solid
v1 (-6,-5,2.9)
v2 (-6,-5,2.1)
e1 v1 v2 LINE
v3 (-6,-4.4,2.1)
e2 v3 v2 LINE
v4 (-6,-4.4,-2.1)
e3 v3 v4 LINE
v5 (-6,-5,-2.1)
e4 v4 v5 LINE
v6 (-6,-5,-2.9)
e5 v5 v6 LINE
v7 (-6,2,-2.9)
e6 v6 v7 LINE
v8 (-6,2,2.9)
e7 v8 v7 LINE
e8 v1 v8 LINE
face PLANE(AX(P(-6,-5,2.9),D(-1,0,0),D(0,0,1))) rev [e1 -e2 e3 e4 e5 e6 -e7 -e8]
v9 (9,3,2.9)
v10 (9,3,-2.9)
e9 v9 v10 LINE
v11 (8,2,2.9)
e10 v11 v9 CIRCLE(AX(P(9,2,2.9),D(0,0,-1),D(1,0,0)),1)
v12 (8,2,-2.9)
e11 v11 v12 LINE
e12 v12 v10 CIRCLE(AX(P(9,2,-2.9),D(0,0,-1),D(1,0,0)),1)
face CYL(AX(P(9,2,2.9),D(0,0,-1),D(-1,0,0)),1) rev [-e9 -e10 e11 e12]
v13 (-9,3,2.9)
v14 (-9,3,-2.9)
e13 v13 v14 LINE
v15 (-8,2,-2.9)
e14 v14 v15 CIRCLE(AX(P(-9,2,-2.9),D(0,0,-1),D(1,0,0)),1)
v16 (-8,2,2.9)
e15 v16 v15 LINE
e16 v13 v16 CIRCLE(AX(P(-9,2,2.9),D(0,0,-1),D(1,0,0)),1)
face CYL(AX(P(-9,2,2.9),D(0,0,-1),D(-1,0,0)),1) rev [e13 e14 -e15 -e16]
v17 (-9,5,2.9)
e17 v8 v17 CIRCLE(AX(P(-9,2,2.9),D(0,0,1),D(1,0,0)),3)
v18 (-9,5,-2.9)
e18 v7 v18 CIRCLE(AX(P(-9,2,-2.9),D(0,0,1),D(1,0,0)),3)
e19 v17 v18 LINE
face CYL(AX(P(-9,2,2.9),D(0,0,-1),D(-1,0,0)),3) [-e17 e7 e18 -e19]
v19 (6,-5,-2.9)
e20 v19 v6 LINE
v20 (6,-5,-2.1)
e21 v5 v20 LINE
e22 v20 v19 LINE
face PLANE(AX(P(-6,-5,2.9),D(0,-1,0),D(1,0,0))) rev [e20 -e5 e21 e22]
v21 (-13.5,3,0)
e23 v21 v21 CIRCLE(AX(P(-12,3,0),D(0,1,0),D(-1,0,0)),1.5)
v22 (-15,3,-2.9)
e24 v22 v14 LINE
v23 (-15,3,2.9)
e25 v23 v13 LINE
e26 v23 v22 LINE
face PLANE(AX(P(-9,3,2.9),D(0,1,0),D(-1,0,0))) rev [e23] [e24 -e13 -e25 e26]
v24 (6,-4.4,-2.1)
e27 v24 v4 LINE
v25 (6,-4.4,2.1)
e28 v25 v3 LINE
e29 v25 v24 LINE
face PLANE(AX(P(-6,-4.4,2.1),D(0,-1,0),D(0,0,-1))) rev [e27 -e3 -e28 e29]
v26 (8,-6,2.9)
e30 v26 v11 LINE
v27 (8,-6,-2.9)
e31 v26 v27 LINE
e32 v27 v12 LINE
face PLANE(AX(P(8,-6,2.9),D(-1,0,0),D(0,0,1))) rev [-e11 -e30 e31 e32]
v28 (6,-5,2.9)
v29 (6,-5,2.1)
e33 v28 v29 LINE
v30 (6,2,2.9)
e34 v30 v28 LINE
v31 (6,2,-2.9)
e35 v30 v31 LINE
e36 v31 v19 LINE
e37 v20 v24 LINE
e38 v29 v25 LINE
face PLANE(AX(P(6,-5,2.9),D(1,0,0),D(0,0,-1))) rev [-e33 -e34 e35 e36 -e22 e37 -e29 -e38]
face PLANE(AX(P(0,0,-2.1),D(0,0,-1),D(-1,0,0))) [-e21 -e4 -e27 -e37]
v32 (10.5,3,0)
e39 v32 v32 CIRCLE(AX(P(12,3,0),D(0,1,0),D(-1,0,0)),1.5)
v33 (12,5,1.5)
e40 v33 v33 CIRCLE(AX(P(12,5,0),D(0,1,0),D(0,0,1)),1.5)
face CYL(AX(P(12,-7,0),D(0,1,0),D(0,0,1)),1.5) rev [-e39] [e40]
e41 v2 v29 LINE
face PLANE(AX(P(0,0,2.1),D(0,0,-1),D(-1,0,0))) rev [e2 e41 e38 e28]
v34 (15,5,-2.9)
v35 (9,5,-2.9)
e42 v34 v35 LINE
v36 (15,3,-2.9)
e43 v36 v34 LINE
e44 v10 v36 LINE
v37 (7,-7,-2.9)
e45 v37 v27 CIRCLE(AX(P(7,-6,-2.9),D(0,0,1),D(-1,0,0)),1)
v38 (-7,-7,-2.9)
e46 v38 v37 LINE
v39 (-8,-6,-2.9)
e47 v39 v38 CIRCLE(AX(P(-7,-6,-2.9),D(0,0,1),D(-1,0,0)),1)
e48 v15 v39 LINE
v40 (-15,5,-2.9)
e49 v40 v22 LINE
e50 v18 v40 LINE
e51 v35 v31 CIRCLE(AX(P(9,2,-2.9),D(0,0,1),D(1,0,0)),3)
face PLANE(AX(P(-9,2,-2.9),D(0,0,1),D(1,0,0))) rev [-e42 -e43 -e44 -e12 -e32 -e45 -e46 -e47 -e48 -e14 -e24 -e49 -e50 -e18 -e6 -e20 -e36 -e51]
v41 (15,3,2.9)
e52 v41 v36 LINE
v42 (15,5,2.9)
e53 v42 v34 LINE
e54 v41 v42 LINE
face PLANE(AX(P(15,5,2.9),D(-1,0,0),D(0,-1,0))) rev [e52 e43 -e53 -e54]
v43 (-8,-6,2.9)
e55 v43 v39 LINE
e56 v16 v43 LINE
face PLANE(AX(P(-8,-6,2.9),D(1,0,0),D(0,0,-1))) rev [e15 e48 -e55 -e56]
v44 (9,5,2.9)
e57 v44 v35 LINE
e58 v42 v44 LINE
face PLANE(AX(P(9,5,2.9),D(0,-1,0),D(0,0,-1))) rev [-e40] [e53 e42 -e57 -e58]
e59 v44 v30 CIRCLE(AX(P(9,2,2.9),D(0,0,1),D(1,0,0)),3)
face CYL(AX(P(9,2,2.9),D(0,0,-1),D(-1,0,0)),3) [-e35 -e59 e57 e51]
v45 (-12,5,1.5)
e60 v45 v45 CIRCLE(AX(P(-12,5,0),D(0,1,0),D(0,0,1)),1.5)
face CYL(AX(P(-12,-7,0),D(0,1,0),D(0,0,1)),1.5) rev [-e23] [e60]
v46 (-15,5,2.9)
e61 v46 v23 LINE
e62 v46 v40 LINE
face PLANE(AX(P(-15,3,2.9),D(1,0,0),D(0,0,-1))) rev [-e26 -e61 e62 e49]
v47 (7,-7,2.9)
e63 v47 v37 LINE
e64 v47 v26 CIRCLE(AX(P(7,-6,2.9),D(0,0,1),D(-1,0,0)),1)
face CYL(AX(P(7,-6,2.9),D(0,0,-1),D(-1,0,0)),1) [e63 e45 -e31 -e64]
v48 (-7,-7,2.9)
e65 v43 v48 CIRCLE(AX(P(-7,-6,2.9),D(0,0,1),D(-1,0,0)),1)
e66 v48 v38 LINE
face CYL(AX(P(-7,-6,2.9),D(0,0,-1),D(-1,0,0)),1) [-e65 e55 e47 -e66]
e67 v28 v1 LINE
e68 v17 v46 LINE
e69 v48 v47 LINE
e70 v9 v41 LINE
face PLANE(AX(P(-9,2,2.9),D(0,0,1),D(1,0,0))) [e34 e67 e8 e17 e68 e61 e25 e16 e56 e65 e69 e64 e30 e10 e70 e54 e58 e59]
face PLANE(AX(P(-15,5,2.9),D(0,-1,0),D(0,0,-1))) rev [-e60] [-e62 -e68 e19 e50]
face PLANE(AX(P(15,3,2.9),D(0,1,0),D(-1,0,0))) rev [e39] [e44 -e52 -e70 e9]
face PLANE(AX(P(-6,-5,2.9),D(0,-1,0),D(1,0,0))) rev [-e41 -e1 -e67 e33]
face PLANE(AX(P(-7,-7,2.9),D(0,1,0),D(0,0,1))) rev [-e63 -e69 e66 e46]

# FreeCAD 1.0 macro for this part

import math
import FreeCAD as App
import Part
import Sketcher
from FreeCAD import Vector
Q = App.Units.Quantity

doc = App.newDocument("Part")
body = doc.addObject("PartDesign::Body", "Body")

# Sketch on XY plane
sketch1 = body.newObject("Sketcher::SketchObject", "Sketch")
sketch1.AttachmentSupport = (doc.getObject("XY_Plane"), [""])
sketch1.MapMode = "FlatFace"
sketch1.addGeometry(Part.LineSegment(Vector(6, -5, 0), Vector(-6, -5, 0)), False)
sketch1.addGeometry(Part.LineSegment(Vector(-6, -5, 0), Vector(-6, 2, 0)), False)
sketch1.addGeometry(Part.ArcOfCircle(Part.Circle(Vector(-9, 2, 0), Vector(0, 0, 1), 3), math.radians(0), math.radians(90)), False)
sketch1.addGeometry(Part.LineSegment(Vector(-9, 5, 0), Vector(-15, 5, 0)), False)
sketch1.addGeometry(Part.LineSegment(Vector(-15, 5, 0), Vector(-15, 3, 0)), False)
sketch1.addGeometry(Part.LineSegment(Vector(-15, 3, 0), Vector(-9, 3, 0)), False)
sketch1.addGeometry(Part.ArcOfCircle(Part.Circle(Vector(-9, 2, 0), Vector(0, 0, 1), 1), math.radians(0), math.radians(90)), False)
sketch1.addGeometry(Part.LineSegment(Vector(-8, 2, 0), Vector(-8, -6, 0)), False)
sketch1.addGeometry(Part.ArcOfCircle(Part.Circle(Vector(-7, -6, 0), Vector(0, 0, 1), 1), math.radians(-180), math.radians(-90)), False)
sketch1.addGeometry(Part.LineSegment(Vector(-7, -7, 0), Vector(7, -7, 0)), False)
sketch1.addGeometry(Part.ArcOfCircle(Part.Circle(Vector(7, -6, 0), Vector(0, 0, 1), 1), math.radians(-90), math.radians(0)), False)
sketch1.addGeometry(Part.LineSegment(Vector(8, -6, 0), Vector(8, 2, 0)), False)
sketch1.addGeometry(Part.ArcOfCircle(Part.Circle(Vector(9, 2, 0), Vector(0, 0, 1), 1), math.radians(90), math.radians(180)), False)
sketch1.addGeometry(Part.LineSegment(Vector(9, 3, 0), Vector(15, 3, 0)), False)
sketch1.addGeometry(Part.LineSegment(Vector(15, 3, 0), Vector(15, 5, 0)), False)
sketch1.addGeometry(Part.LineSegment(Vector(15, 5, 0), Vector(9, 5, 0)), False)
sketch1.addGeometry(Part.ArcOfCircle(Part.Circle(Vector(9, 2, 0), Vector(0, 0, 1), 3), math.radians(90), math.radians(180)), False)
sketch1.addGeometry(Part.LineSegment(Vector(6, 2, 0), Vector(6, -5, 0)), False)
sketch1.addConstraint(Sketcher.Constraint("Coincident", 0, 2, 1, 1))
sketch1.addConstraint(Sketcher.Constraint("Tangent", 1, 2, 2, 1))
sketch1.addConstraint(Sketcher.Constraint("Tangent", 2, 2, 3, 1))
sketch1.addConstraint(Sketcher.Constraint("Coincident", 3, 2, 4, 1))
sketch1.addConstraint(Sketcher.Constraint("Coincident", 4, 2, 5, 1))
sketch1.addConstraint(Sketcher.Constraint("Tangent", 5, 2, 6, 2))
sketch1.addConstraint(Sketcher.Constraint("Tangent", 6, 1, 7, 1))
sketch1.addConstraint(Sketcher.Constraint("Tangent", 7, 2, 8, 1))
sketch1.addConstraint(Sketcher.Constraint("Tangent", 8, 2, 9, 1))
sketch1.addConstraint(Sketcher.Constraint("Tangent", 9, 2, 10, 1))
sketch1.addConstraint(Sketcher.Constraint("Tangent", 10, 2, 11, 1))
sketch1.addConstraint(Sketcher.Constraint("Tangent", 11, 2, 12, 2))
sketch1.addConstraint(Sketcher.Constraint("Tangent", 12, 1, 13, 1))
sketch1.addConstraint(Sketcher.Constraint("Coincident", 13, 2, 14, 1))
sketch1.addConstraint(Sketcher.Constraint("Coincident", 14, 2, 15, 1))
sketch1.addConstraint(Sketcher.Constraint("Tangent", 15, 2, 16, 1))
sketch1.addConstraint(Sketcher.Constraint("Tangent", 16, 2, 17, 1))
sketch1.addConstraint(Sketcher.Constraint("Coincident", 17, 2, 0, 1))
sketch1.addConstraint(Sketcher.Constraint("Horizontal", 0))
sketch1.addConstraint(Sketcher.Constraint("Vertical", 1))
sketch1.addConstraint(Sketcher.Constraint("Horizontal", 3))
sketch1.addConstraint(Sketcher.Constraint("Vertical", 4))
sketch1.addConstraint(Sketcher.Constraint("Horizontal", 5))
sketch1.addConstraint(Sketcher.Constraint("Vertical", 7))
sketch1.addConstraint(Sketcher.Constraint("Horizontal", 9))
sketch1.addConstraint(Sketcher.Constraint("Vertical", 11))
sketch1.addConstraint(Sketcher.Constraint("Horizontal", 13))
sketch1.addConstraint(Sketcher.Constraint("Vertical", 14))
sketch1.addConstraint(Sketcher.Constraint("Horizontal", 15))
sketch1.addConstraint(Sketcher.Constraint("Vertical", 17))
sketch1.addConstraint(Sketcher.Constraint("Coincident", 6, 3, 2, 3))
sketch1.addConstraint(Sketcher.Constraint("Coincident", 16, 3, 12, 3))
sketch1.addConstraint(Sketcher.Constraint("Equal", 6, 8))
sketch1.addConstraint(Sketcher.Constraint("Equal", 8, 10))
sketch1.addConstraint(Sketcher.Constraint("Equal", 10, 12))
sketch1.addConstraint(Sketcher.Constraint("Equal", 2, 16))
sketch1.addConstraint(Sketcher.Constraint("Symmetric", 2, 3, 12, 3, -2))
sketch1.addConstraint(Sketcher.Constraint("Equal", 5, 13))
sketch1.addConstraint(Sketcher.Constraint("Radius", 2, Q("3 mm")))
sketch1.addConstraint(Sketcher.Constraint("Radius", 6, Q("1 mm")))
sketch1.addConstraint(Sketcher.Constraint("DistanceX", 0, 2, 0, 1, Q("12 mm")))
sketch1.addConstraint(Sketcher.Constraint("DistanceX", 3, 2, 3, 1, Q("6 mm")))
sketch1.addConstraint(Sketcher.Constraint("DistanceY", 1, 1, 1, 2, Q("7 mm")))
sketch1.addConstraint(Sketcher.Constraint("DistanceY", 7, 2, 7, 1, Q("8 mm")))
sketch1.addConstraint(Sketcher.Constraint("DistanceY", -1, 1, 2, 3, Q("2 mm")))
pad1 = body.newObject("PartDesign::Pad", "Pad")
pad1.Profile = sketch1
pad1.Length = 5.8
pad1.Midplane = True

# Sketch on XY plane
sketch2 = body.newObject("Sketcher::SketchObject", "Sketch001")
sketch2.AttachmentSupport = (doc.getObject("XY_Plane"), [""])
sketch2.MapMode = "FlatFace"
sketch2.addGeometry(Part.LineSegment(Vector(-6, -4.4, 0), Vector(-6, -5, 0)), False)
sketch2.addGeometry(Part.LineSegment(Vector(-6, -5, 0), Vector(6, -5, 0)), False)
sketch2.addGeometry(Part.LineSegment(Vector(6, -5, 0), Vector(6, -4.4, 0)), False)
sketch2.addGeometry(Part.LineSegment(Vector(6, -4.4, 0), Vector(-6, -4.4, 0)), False)
sketch2.addConstraint(Sketcher.Constraint("Coincident", 0, 2, 1, 1))
sketch2.addConstraint(Sketcher.Constraint("Coincident", 1, 2, 2, 1))
sketch2.addConstraint(Sketcher.Constraint("Coincident", 2, 2, 3, 1))
sketch2.addConstraint(Sketcher.Constraint("Coincident", 3, 2, 0, 1))
sketch2.addConstraint(Sketcher.Constraint("Vertical", 0))
sketch2.addConstraint(Sketcher.Constraint("Horizontal", 1))
sketch2.addConstraint(Sketcher.Constraint("Vertical", 2))
sketch2.addConstraint(Sketcher.Constraint("Horizontal", 3))
sketch2.addConstraint(Sketcher.Constraint("DistanceX", 1, 1, 1, 2, Q("12 mm")))
sketch2.addConstraint(Sketcher.Constraint("DistanceY", 0, 2, 0, 1, Q("0.6 mm")))
sketch2.addConstraint(Sketcher.Constraint("DistanceX", 0, 2, -1, 1, Q("6 mm")))
sketch2.addConstraint(Sketcher.Constraint("DistanceY", 0, 2, -1, 1, Q("5 mm")))
pad2 = body.newObject("PartDesign::Pad", "Pad001")
pad2.Profile = sketch2
pad2.Length = 4.2
pad2.Midplane = True

# Sketch on XZ plane
sketch3 = body.newObject("Sketcher::SketchObject", "Sketch002")
sketch3.AttachmentSupport = (doc.getObject("XZ_Plane"), [""])
sketch3.MapMode = "FlatFace"
sketch3.AttachmentOffset = App.Placement(Vector(0, 0, -5), App.Rotation())
sketch3.addGeometry(Part.Circle(Vector(12, 0, 0), Vector(0, 0, 1), 1.5), False)
sketch3.addGeometry(Part.Circle(Vector(-12, 0, 0), Vector(0, 0, 1), 1.5), False)
sketch3.addConstraint(Sketcher.Constraint("Equal", 0, 1))
sketch3.addConstraint(Sketcher.Constraint("Symmetric", 0, 3, 1, 3, -1, 1))
sketch3.addConstraint(Sketcher.Constraint("PointOnObject", 0, 3, -1))
sketch3.addConstraint(Sketcher.Constraint("Diameter", 0, Q("3 mm")))
sketch3.addConstraint(Sketcher.Constraint("DistanceX", -1, 1, 0, 3, Q("12 mm")))
pocket1 = body.newObject("PartDesign::Pocket", "Pocket")
pocket1.Profile = sketch3
pocket1.Type = "ThroughAll"
pocket1.Reversed = True

doc.recompute()
